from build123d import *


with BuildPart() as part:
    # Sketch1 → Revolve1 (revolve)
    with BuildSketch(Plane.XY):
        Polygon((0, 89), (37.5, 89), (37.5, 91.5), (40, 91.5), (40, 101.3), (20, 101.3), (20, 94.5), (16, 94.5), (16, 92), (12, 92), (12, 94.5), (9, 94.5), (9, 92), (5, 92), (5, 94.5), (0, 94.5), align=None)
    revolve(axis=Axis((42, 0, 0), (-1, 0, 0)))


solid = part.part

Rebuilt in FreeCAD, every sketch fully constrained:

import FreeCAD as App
import Part
import Sketcher
from FreeCAD import Vector
Q = App.Units.Quantity


def add_polygon(sketch, points):
    """Adds a closed chain of lines whose ends are joined by coincident constraints."""
    first, n = sketch.GeometryCount, len(points)
    for a, b in zip(points, points[1:] + points[:1]):
        sketch.addGeometry(Part.LineSegment(App.Vector(*a, 0), App.Vector(*b, 0)), False)
    for i in range(n):
        sketch.addConstraint(Sketcher.Constraint("Coincident", first + i, 2, first + (i + 1) % n, 1))

doc = App.newDocument("Part")
body = doc.addObject("PartDesign::Body", "Body")

sketch1 = doc.addObject("Sketcher::SketchObject", "Sketch")
body.addObject(sketch1)
sketch1.AttachmentSupport = (doc.XY_Plane, [""])
sketch1.MapMode = "FlatFace"
add_polygon(sketch1, [(0, 89), (37.5, 89), (37.5, 91.5), (40, 91.5), (40, 101.3), (20, 101.3), (20, 94.5), (16, 94.5), (16, 92), (12, 92), (12, 94.5), (9, 94.5), (9, 92), (5, 92), (5, 94.5), (0, 94.5)])
sketch1.addConstraint(Sketcher.Constraint("Horizontal", 0))
sketch1.addConstraint(Sketcher.Constraint("Vertical", 1))
sketch1.addConstraint(Sketcher.Constraint("Horizontal", 2))
sketch1.addConstraint(Sketcher.Constraint("Vertical", 3))
sketch1.addConstraint(Sketcher.Constraint("Horizontal", 4))
sketch1.addConstraint(Sketcher.Constraint("Vertical", 5))
sketch1.addConstraint(Sketcher.Constraint("Horizontal", 6))
sketch1.addConstraint(Sketcher.Constraint("Vertical", 7))
sketch1.addConstraint(Sketcher.Constraint("Horizontal", 8))
sketch1.addConstraint(Sketcher.Constraint("Vertical", 9))
sketch1.addConstraint(Sketcher.Constraint("Horizontal", 10))
sketch1.addConstraint(Sketcher.Constraint("Vertical", 11))
sketch1.addConstraint(Sketcher.Constraint("Horizontal", 12))
sketch1.addConstraint(Sketcher.Constraint("Vertical", 13))
sketch1.addConstraint(Sketcher.Constraint("Horizontal", 14))
sketch1.addConstraint(Sketcher.Constraint("Vertical", 15))
sketch1.addConstraint(Sketcher.Constraint("PointOnObject", 14, 2, -2))
sketch1.addConstraint(Sketcher.Constraint("Horizontal", 6, 2, 9, 2))
sketch1.addConstraint(Sketcher.Constraint("Horizontal", 8, 2, 11, 2))
sketch1.addConstraint(Sketcher.Constraint("Horizontal", 10, 2, 13, 2))
sketch1.addConstraint(Sketcher.Constraint("Equal", 6, 8))
sketch1.addConstraint(Sketcher.Constraint("Equal", 8, 12))
sketch1.addConstraint(Sketcher.Constraint("Equal", 2, 1))
sketch1.addConstraint(Sketcher.Constraint("Equal", 1, 7))
sketch1.addConstraint(Sketcher.Constraint("DistanceX", 4, 2, 4, 1, Q("20 mm")))
sketch1.addConstraint(Sketcher.Constraint("DistanceX", 6, 2, 6, 1, Q("4 mm")))
sketch1.addConstraint(Sketcher.Constraint("DistanceX", 10, 2, 10, 1, Q("3 mm")))
sketch1.addConstraint(Sketcher.Constraint("DistanceX", 14, 2, 14, 1, Q("5 mm")))
sketch1.addConstraint(Sketcher.Constraint("DistanceX", 0, 1, 0, 2, Q("37.5 mm")))
sketch1.addConstraint(Sketcher.Constraint("DistanceY", 3, 1, 3, 2, Q("9.8 mm")))
sketch1.addConstraint(Sketcher.Constraint("DistanceY", 5, 2, 5, 1, Q("6.8 mm")))
sketch1.addConstraint(Sketcher.Constraint("DistanceY", -1, 1, 0, 2, Q("89 mm")))
revolution = doc.addObject("PartDesign::Revolution", "Revolution")
body.addObject(revolution)
revolution.Profile = sketch1
revolution.ReferenceAxis = (sketch1, ["H_Axis"])
revolution.Angle = 360

doc.recompute()
